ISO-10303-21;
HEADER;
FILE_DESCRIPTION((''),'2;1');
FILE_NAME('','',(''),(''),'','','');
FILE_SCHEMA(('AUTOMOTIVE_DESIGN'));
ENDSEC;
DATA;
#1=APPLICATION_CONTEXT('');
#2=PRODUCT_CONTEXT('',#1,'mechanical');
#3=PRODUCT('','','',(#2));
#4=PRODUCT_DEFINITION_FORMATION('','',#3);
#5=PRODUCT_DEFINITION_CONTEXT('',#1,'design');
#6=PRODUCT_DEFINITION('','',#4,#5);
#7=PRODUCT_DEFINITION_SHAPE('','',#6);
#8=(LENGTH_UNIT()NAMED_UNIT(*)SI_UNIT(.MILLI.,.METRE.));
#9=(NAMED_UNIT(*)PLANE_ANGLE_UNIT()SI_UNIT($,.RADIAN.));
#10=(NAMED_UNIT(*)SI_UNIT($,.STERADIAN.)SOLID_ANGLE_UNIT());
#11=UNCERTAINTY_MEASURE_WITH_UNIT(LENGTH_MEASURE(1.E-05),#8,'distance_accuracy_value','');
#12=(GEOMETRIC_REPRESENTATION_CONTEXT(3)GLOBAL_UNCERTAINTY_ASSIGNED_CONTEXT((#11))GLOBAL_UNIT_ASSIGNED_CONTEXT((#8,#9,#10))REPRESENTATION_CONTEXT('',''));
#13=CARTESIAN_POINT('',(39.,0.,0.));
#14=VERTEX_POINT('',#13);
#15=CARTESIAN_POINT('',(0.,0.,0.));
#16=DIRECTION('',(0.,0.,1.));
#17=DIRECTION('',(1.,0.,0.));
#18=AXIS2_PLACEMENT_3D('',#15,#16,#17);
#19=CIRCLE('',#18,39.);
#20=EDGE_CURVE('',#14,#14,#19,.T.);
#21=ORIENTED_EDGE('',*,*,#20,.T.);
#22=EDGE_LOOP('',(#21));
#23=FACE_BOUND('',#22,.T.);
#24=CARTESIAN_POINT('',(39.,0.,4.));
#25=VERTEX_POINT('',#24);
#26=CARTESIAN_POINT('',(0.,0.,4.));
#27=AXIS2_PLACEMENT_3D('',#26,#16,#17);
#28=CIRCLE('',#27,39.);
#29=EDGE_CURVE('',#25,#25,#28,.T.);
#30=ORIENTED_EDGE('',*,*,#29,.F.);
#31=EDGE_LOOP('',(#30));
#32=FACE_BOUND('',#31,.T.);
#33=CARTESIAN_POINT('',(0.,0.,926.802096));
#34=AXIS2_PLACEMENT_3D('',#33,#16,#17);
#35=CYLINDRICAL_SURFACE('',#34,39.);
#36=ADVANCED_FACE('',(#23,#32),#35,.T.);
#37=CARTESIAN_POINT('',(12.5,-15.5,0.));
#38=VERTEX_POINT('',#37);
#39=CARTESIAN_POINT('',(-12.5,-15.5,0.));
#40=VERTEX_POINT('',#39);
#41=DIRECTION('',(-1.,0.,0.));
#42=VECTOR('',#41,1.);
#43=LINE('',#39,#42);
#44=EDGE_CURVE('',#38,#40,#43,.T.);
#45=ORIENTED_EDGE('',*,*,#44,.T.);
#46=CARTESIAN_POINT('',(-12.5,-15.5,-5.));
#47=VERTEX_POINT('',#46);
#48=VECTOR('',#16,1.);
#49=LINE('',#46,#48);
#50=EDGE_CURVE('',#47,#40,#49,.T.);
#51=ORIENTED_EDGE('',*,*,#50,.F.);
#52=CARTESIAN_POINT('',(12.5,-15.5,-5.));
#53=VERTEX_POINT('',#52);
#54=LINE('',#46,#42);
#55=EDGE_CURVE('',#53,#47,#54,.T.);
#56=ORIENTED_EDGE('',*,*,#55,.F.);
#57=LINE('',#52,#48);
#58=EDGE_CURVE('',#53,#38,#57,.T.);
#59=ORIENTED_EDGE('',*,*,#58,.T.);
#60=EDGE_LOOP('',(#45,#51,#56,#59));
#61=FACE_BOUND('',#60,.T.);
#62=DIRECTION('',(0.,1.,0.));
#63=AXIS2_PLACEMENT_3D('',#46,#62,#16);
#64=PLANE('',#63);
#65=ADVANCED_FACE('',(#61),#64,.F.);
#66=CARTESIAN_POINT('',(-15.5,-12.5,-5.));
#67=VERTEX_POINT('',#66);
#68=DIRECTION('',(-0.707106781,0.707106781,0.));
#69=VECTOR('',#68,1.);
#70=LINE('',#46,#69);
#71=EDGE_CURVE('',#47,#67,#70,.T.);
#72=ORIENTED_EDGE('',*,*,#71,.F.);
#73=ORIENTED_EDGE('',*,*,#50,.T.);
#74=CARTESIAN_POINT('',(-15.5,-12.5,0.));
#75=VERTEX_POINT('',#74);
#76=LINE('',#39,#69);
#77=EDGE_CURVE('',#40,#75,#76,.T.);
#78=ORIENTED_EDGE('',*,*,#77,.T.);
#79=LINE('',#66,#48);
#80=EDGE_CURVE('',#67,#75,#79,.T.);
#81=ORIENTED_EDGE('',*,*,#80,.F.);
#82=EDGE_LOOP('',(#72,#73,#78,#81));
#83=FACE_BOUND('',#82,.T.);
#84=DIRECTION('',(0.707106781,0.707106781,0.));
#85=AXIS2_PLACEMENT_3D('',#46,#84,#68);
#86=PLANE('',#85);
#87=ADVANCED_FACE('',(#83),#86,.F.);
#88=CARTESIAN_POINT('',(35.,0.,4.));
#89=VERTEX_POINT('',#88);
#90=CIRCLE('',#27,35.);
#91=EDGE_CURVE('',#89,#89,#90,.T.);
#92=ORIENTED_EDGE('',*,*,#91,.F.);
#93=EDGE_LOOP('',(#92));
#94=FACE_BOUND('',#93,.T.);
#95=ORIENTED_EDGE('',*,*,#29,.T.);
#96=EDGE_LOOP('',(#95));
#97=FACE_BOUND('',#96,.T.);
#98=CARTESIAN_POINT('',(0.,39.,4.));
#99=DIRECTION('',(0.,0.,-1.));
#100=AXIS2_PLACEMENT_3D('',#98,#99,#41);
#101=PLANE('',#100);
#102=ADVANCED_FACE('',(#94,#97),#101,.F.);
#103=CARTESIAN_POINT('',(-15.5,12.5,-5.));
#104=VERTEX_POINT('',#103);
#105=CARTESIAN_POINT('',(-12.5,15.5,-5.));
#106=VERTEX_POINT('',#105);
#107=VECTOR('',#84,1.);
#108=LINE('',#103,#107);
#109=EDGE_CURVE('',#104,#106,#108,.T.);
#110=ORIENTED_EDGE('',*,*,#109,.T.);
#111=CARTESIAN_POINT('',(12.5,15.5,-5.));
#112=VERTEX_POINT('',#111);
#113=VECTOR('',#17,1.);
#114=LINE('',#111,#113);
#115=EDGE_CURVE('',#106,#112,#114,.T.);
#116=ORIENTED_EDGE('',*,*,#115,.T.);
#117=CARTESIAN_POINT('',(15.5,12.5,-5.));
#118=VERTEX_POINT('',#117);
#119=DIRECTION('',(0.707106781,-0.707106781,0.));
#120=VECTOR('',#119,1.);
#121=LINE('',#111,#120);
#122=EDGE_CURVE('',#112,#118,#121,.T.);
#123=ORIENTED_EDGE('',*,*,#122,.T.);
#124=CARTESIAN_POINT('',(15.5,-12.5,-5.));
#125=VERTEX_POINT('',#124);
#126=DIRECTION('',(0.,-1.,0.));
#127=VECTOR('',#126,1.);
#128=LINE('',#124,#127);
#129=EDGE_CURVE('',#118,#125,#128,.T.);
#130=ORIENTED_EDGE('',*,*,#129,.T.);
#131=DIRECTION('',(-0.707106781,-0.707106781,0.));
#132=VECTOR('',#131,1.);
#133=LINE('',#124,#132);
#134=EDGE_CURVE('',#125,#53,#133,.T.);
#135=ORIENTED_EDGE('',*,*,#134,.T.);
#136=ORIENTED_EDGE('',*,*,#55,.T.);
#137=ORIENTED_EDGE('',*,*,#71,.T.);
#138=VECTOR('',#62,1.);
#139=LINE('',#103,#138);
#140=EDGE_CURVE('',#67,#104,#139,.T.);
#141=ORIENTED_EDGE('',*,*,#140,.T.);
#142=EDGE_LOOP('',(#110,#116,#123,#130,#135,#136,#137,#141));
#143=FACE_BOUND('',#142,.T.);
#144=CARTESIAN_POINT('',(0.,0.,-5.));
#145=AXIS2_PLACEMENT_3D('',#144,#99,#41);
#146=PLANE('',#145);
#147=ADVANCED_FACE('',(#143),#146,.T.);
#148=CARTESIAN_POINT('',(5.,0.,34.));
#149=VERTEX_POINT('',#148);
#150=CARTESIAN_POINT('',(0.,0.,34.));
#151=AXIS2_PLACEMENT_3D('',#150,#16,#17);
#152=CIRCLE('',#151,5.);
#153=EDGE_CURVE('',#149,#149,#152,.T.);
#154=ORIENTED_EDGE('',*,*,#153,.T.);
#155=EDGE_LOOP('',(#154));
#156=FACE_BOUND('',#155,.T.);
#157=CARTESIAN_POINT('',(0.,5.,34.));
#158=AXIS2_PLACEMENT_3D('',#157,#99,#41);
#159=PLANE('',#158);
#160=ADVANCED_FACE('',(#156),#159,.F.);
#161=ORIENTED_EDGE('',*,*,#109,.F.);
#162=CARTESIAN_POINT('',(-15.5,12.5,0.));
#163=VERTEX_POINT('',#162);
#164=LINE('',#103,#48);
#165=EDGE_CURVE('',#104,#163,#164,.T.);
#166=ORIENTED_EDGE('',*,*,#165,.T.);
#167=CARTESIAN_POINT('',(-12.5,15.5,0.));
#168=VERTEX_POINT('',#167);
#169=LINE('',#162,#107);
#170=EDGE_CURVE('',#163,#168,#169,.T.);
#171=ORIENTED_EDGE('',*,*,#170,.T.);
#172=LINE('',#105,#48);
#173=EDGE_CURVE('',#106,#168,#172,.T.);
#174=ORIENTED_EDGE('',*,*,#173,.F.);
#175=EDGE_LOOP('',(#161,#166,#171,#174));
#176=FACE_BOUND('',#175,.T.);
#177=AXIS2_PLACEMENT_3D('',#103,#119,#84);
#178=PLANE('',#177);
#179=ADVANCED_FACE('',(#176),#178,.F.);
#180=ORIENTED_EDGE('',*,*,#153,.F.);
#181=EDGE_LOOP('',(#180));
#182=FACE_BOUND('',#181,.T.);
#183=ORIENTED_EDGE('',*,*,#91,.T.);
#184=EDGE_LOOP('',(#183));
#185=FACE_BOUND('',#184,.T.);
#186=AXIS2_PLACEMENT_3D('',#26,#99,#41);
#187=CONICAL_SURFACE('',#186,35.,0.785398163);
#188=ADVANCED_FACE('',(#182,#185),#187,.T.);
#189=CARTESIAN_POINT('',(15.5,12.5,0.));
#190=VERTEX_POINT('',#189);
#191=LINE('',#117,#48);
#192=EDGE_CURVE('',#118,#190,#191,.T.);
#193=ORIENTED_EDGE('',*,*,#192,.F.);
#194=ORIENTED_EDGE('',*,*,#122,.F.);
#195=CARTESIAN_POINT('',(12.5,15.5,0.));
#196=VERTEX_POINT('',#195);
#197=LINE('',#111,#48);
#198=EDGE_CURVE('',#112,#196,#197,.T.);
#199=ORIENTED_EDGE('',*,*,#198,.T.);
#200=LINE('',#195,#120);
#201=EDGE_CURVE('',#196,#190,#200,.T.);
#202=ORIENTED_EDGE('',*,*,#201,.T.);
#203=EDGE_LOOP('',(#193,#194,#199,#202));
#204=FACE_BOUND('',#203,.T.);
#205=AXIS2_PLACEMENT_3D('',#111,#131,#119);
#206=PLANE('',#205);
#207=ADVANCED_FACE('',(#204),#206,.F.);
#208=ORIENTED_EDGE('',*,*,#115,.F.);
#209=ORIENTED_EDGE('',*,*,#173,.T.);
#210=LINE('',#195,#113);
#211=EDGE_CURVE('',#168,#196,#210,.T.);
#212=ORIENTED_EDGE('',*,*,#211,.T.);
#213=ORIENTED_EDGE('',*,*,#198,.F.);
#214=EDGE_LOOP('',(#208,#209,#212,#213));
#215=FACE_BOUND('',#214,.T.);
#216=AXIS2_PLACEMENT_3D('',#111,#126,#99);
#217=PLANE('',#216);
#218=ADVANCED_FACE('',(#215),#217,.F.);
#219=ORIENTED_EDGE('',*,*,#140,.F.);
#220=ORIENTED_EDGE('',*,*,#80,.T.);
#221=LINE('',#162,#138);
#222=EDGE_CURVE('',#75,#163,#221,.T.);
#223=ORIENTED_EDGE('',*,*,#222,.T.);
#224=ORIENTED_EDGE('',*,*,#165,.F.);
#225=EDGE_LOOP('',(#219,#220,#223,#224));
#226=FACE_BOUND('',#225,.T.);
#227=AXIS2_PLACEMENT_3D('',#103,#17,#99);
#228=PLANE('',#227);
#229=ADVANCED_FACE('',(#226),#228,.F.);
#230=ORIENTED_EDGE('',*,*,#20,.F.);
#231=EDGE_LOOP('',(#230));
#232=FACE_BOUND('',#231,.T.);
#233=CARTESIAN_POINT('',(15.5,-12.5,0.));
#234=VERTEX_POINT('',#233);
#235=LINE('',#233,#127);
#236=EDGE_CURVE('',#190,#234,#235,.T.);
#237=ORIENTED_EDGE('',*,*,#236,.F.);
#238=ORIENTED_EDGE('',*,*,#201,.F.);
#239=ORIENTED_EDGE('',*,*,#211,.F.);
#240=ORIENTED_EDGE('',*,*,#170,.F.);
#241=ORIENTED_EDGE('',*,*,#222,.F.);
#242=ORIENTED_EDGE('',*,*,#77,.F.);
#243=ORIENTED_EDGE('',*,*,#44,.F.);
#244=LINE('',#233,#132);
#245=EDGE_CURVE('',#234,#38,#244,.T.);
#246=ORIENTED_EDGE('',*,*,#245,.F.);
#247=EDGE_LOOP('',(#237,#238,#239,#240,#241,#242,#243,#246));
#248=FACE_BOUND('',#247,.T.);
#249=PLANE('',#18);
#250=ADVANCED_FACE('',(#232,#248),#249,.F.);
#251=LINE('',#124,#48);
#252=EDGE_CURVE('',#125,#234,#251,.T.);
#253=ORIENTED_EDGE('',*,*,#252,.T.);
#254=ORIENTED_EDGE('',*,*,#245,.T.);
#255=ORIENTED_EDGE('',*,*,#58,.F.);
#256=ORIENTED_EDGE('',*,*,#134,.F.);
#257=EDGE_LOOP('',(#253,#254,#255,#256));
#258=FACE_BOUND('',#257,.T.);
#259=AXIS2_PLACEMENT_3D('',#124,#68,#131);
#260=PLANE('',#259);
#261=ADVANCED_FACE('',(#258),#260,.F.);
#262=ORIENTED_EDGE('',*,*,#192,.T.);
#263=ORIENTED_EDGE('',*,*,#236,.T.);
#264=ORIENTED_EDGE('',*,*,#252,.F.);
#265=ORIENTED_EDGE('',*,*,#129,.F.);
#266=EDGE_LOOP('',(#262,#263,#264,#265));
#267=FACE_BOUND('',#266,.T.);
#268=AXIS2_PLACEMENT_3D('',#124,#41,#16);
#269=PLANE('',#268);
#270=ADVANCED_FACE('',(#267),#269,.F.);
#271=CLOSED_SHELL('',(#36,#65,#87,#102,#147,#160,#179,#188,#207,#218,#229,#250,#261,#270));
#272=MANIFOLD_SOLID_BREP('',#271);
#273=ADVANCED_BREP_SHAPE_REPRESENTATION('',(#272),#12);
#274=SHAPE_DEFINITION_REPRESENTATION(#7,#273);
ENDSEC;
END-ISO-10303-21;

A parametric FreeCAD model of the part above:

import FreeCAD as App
import Part
import Sketcher

V = App.Vector
Q = App.Units.Quantity


def add_polygon(sketch, points):
    """Adds a closed chain of lines whose ends are joined by coincident constraints."""
    first, n = sketch.GeometryCount, len(points)
    for a, b in zip(points, points[1:] + points[:1]):
        sketch.addGeometry(Part.LineSegment(App.Vector(*a, 0), App.Vector(*b, 0)), False)
    for i in range(n):
        sketch.addConstraint(Sketcher.Constraint("Coincident", first + i, 2, first + (i + 1) % n, 1))

doc = App.newDocument("Part")
params = doc.addObject("Spreadsheet::Sheet", "Params")
for row, (alias, value) in enumerate([
    ("sketch1_width", "39 mm"),
    ("sketch1_width2", "4 mm"),
    ("sketch1_width3", "5 mm"),
    ("sketch1_height", "34 mm"),
    ("revolution_angle", "360 deg"),
    ("sketch2_width", "25 mm"),
    ("pad1_length", "5 mm"),
], start=1):
    params.set(f"A{row}", alias)
    params.set(f"B{row}", "=" + value)
    params.setAlias(f"B{row}", alias)

body = doc.addObject("PartDesign::Body", "Body")

sketch1 = body.newObject("Sketcher::SketchObject", "Sketch")
sketch1.AttachmentSupport = (doc.getObject("YZ_Plane"), [""])
sketch1.MapMode = "FlatFace"
add_polygon(sketch1, [(0, 0), (39, 0), (39, 4), (35, 4), (5, 34), (0, 34)])
sketch1.addConstraint([
    Sketcher.Constraint("Horizontal", 0),
    Sketcher.Constraint("Vertical", 1),
    Sketcher.Constraint("Horizontal", 2),
    Sketcher.Constraint("Horizontal", 4),
    Sketcher.Constraint("Vertical", 5),
    Sketcher.Constraint("Coincident", 5, 2, -1, 1),
    Sketcher.Constraint("Equal", 2, 1),
    Sketcher.Constraint("DistanceX", 0, 1, 0, 2, Q("39 mm")),
    Sketcher.Constraint("DistanceX", 2, 2, 2, 1, Q("4 mm")),
    Sketcher.Constraint("DistanceX", 4, 2, 4, 1, Q("5 mm")),
    Sketcher.Constraint("DistanceY", 5, 2, 5, 1, Q("34 mm")),
])
sketch1.setExpression("Constraints[13]", "Params.sketch1_width")
sketch1.setExpression("Constraints[14]", "Params.sketch1_width2")
sketch1.setExpression("Constraints[15]", "Params.sketch1_width3")
sketch1.setExpression("Constraints[16]", "Params.sketch1_height")
revolution = body.newObject("PartDesign::Revolution", "Revolution")
revolution.Profile = sketch1
revolution.ReferenceAxis = (sketch1, ["V_Axis"])
revolution.setExpression("Angle", "Params.revolution_angle")

sketch2 = body.newObject("Sketcher::SketchObject", "Sketch001")
sketch2.AttachmentSupport = (doc.getObject("XY_Plane"), [""])
sketch2.MapMode = "FlatFace"
add_polygon(sketch2, [(12.5, -15.5), (-12.5, -15.5), (-15.5, -12.5), (-15.5, 12.5), (-12.5, 15.5), (12.5, 15.5), (15.5, 12.5), (15.5, -12.5)])
sketch2.addConstraint([
    Sketcher.Constraint("Horizontal", 0),
    Sketcher.Constraint("Vertical", 2),
    Sketcher.Constraint("Horizontal", 4),
    Sketcher.Constraint("Vertical", 6),
    Sketcher.Constraint("Symmetric", 0, 2, 4, 2, -1, 1),
    Sketcher.Constraint("Symmetric", 1, 2, 5, 2, -1, 1),
    Sketcher.Constraint("Perpendicular", 1, 3),
    Sketcher.Constraint("Perpendicular", 5, 7),
    Sketcher.Constraint("Horizontal", 2, 2, 5, 2),
    Sketcher.Constraint("Horizontal", 1, 2, 6, 2),
    Sketcher.Constraint("Vertical", 0, 2, 3, 2),
    Sketcher.Constraint("Equal", 4, 2),
    Sketcher.Constraint("DistanceX", 0, 2, 0, 1, Q("25 mm")),
    Sketcher.Constraint("DistanceX", 1, 2, 0, 2, Q("3 mm")),
])
sketch2.setExpression("Constraints[20]", "Params.sketch2_width")
pad1 = body.newObject("PartDesign::Pad", "Pad")
pad1.Profile = sketch2
pad1.setExpression("Length", "Params.pad1_length")
pad1.Reversed = True

doc.recompute()
